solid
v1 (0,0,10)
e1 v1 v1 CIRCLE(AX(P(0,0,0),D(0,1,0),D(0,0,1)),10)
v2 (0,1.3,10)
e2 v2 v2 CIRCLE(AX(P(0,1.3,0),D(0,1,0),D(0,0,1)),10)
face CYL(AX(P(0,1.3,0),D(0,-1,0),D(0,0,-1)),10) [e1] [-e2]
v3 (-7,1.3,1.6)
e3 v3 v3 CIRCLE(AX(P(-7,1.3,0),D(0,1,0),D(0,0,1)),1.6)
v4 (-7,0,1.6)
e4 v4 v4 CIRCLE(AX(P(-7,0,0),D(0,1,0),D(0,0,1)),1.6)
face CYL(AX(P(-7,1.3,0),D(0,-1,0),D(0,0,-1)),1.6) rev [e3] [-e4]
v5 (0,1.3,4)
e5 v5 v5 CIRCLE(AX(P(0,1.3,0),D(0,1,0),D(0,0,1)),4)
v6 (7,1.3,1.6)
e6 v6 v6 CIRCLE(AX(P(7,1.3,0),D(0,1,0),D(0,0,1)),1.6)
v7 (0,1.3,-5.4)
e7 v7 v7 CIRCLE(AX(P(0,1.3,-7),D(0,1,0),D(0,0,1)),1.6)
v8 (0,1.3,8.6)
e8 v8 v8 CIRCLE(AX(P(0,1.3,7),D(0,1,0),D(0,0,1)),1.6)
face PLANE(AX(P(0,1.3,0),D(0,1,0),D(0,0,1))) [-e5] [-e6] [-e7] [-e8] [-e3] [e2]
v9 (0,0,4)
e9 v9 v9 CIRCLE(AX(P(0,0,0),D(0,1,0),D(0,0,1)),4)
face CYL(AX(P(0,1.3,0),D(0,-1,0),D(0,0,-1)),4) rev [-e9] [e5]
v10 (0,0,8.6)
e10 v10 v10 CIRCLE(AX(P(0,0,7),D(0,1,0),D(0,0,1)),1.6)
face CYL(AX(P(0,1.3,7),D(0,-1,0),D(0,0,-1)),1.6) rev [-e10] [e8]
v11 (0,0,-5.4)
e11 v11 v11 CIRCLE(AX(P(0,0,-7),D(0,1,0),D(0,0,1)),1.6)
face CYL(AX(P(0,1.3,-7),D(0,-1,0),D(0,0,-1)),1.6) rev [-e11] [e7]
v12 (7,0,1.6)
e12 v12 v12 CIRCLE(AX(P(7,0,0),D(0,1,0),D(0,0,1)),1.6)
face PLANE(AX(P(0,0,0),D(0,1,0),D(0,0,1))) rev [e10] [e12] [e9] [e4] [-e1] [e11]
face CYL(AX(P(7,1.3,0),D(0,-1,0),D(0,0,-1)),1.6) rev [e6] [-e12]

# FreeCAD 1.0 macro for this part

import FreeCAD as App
import Part
import Sketcher

V = App.Vector
Q = App.Units.Quantity

doc = App.newDocument("Part")
params = doc.addObject("Spreadsheet::Sheet", "Params")
for row, (alias, value) in enumerate([
    ("sketch1_diameter", "20 mm"),
    ("sketch1_diameter2", "8 mm"),
    ("sketch1_diameter3", "3.2 mm"),
    ("pad1_length", "1.3 mm"),
], start=1):
    params.set(f"A{row}", alias)
    params.set(f"B{row}", "=" + value)
    params.setAlias(f"B{row}", alias)

body = doc.addObject("PartDesign::Body", "Body")

# Sketch on XZ plane
sketch1 = body.newObject("Sketcher::SketchObject", "Sketch")
sketch1.AttachmentSupport = (doc.getObject("XZ_Plane"), [""])
sketch1.MapMode = "FlatFace"
sketch1.addGeometry([
    Part.Circle(V(0, 0, 0), V(0, 0, 1), 10),  # 0
    Part.Circle(V(0, -7, 0), V(0, 0, 1), 1.6),  # 1
    Part.Circle(V(-7, 0, 0), V(0, 0, 1), 1.6),  # 2
    Part.Circle(V(0, 0, 0), V(0, 0, 1), 4),  # 3
    Part.Circle(V(7, 0, 0), V(0, 0, 1), 1.6),  # 4
    Part.Circle(V(0, 7, 0), V(0, 0, 1), 1.6),  # 5
], False)
sketch1.addConstraint([
    Sketcher.Constraint("Coincident", 0, 3, -1, 1),
    Sketcher.Constraint("Coincident", 3, 3, -1, 1),
    Sketcher.Constraint("Equal", 1, 2),
    Sketcher.Constraint("Equal", 2, 4),
    Sketcher.Constraint("Equal", 4, 5),
    Sketcher.Constraint("Symmetric", 2, 3, 4, 3, -1, 1),
    Sketcher.Constraint("Symmetric", 1, 3, 5, 3, -1, 1),
    Sketcher.Constraint("PointOnObject", 1, 3, -2),
    Sketcher.Constraint("PointOnObject", 2, 3, -1),
    Sketcher.Constraint("Diameter", 0, Q("20 mm")),
    Sketcher.Constraint("Diameter", 3, Q("8 mm")),
    Sketcher.Constraint("Diameter", 1, Q("3.2 mm")),
    Sketcher.Constraint("DistanceY", 1, 3, -1, 1, Q("7 mm")),
    Sketcher.Constraint("DistanceX", 2, 3, -1, 1, Q("7 mm")),
])
sketch1.setExpression("Constraints[9]", "Params.sketch1_diameter")
sketch1.setExpression("Constraints[10]", "Params.sketch1_diameter2")
sketch1.setExpression("Constraints[11]", "Params.sketch1_diameter3")
pad1 = body.newObject("PartDesign::Pad", "Pad")
pad1.Profile = sketch1
pad1.setExpression("Length", "Params.pad1_length")
pad1.Reversed = True

doc.recompute()
